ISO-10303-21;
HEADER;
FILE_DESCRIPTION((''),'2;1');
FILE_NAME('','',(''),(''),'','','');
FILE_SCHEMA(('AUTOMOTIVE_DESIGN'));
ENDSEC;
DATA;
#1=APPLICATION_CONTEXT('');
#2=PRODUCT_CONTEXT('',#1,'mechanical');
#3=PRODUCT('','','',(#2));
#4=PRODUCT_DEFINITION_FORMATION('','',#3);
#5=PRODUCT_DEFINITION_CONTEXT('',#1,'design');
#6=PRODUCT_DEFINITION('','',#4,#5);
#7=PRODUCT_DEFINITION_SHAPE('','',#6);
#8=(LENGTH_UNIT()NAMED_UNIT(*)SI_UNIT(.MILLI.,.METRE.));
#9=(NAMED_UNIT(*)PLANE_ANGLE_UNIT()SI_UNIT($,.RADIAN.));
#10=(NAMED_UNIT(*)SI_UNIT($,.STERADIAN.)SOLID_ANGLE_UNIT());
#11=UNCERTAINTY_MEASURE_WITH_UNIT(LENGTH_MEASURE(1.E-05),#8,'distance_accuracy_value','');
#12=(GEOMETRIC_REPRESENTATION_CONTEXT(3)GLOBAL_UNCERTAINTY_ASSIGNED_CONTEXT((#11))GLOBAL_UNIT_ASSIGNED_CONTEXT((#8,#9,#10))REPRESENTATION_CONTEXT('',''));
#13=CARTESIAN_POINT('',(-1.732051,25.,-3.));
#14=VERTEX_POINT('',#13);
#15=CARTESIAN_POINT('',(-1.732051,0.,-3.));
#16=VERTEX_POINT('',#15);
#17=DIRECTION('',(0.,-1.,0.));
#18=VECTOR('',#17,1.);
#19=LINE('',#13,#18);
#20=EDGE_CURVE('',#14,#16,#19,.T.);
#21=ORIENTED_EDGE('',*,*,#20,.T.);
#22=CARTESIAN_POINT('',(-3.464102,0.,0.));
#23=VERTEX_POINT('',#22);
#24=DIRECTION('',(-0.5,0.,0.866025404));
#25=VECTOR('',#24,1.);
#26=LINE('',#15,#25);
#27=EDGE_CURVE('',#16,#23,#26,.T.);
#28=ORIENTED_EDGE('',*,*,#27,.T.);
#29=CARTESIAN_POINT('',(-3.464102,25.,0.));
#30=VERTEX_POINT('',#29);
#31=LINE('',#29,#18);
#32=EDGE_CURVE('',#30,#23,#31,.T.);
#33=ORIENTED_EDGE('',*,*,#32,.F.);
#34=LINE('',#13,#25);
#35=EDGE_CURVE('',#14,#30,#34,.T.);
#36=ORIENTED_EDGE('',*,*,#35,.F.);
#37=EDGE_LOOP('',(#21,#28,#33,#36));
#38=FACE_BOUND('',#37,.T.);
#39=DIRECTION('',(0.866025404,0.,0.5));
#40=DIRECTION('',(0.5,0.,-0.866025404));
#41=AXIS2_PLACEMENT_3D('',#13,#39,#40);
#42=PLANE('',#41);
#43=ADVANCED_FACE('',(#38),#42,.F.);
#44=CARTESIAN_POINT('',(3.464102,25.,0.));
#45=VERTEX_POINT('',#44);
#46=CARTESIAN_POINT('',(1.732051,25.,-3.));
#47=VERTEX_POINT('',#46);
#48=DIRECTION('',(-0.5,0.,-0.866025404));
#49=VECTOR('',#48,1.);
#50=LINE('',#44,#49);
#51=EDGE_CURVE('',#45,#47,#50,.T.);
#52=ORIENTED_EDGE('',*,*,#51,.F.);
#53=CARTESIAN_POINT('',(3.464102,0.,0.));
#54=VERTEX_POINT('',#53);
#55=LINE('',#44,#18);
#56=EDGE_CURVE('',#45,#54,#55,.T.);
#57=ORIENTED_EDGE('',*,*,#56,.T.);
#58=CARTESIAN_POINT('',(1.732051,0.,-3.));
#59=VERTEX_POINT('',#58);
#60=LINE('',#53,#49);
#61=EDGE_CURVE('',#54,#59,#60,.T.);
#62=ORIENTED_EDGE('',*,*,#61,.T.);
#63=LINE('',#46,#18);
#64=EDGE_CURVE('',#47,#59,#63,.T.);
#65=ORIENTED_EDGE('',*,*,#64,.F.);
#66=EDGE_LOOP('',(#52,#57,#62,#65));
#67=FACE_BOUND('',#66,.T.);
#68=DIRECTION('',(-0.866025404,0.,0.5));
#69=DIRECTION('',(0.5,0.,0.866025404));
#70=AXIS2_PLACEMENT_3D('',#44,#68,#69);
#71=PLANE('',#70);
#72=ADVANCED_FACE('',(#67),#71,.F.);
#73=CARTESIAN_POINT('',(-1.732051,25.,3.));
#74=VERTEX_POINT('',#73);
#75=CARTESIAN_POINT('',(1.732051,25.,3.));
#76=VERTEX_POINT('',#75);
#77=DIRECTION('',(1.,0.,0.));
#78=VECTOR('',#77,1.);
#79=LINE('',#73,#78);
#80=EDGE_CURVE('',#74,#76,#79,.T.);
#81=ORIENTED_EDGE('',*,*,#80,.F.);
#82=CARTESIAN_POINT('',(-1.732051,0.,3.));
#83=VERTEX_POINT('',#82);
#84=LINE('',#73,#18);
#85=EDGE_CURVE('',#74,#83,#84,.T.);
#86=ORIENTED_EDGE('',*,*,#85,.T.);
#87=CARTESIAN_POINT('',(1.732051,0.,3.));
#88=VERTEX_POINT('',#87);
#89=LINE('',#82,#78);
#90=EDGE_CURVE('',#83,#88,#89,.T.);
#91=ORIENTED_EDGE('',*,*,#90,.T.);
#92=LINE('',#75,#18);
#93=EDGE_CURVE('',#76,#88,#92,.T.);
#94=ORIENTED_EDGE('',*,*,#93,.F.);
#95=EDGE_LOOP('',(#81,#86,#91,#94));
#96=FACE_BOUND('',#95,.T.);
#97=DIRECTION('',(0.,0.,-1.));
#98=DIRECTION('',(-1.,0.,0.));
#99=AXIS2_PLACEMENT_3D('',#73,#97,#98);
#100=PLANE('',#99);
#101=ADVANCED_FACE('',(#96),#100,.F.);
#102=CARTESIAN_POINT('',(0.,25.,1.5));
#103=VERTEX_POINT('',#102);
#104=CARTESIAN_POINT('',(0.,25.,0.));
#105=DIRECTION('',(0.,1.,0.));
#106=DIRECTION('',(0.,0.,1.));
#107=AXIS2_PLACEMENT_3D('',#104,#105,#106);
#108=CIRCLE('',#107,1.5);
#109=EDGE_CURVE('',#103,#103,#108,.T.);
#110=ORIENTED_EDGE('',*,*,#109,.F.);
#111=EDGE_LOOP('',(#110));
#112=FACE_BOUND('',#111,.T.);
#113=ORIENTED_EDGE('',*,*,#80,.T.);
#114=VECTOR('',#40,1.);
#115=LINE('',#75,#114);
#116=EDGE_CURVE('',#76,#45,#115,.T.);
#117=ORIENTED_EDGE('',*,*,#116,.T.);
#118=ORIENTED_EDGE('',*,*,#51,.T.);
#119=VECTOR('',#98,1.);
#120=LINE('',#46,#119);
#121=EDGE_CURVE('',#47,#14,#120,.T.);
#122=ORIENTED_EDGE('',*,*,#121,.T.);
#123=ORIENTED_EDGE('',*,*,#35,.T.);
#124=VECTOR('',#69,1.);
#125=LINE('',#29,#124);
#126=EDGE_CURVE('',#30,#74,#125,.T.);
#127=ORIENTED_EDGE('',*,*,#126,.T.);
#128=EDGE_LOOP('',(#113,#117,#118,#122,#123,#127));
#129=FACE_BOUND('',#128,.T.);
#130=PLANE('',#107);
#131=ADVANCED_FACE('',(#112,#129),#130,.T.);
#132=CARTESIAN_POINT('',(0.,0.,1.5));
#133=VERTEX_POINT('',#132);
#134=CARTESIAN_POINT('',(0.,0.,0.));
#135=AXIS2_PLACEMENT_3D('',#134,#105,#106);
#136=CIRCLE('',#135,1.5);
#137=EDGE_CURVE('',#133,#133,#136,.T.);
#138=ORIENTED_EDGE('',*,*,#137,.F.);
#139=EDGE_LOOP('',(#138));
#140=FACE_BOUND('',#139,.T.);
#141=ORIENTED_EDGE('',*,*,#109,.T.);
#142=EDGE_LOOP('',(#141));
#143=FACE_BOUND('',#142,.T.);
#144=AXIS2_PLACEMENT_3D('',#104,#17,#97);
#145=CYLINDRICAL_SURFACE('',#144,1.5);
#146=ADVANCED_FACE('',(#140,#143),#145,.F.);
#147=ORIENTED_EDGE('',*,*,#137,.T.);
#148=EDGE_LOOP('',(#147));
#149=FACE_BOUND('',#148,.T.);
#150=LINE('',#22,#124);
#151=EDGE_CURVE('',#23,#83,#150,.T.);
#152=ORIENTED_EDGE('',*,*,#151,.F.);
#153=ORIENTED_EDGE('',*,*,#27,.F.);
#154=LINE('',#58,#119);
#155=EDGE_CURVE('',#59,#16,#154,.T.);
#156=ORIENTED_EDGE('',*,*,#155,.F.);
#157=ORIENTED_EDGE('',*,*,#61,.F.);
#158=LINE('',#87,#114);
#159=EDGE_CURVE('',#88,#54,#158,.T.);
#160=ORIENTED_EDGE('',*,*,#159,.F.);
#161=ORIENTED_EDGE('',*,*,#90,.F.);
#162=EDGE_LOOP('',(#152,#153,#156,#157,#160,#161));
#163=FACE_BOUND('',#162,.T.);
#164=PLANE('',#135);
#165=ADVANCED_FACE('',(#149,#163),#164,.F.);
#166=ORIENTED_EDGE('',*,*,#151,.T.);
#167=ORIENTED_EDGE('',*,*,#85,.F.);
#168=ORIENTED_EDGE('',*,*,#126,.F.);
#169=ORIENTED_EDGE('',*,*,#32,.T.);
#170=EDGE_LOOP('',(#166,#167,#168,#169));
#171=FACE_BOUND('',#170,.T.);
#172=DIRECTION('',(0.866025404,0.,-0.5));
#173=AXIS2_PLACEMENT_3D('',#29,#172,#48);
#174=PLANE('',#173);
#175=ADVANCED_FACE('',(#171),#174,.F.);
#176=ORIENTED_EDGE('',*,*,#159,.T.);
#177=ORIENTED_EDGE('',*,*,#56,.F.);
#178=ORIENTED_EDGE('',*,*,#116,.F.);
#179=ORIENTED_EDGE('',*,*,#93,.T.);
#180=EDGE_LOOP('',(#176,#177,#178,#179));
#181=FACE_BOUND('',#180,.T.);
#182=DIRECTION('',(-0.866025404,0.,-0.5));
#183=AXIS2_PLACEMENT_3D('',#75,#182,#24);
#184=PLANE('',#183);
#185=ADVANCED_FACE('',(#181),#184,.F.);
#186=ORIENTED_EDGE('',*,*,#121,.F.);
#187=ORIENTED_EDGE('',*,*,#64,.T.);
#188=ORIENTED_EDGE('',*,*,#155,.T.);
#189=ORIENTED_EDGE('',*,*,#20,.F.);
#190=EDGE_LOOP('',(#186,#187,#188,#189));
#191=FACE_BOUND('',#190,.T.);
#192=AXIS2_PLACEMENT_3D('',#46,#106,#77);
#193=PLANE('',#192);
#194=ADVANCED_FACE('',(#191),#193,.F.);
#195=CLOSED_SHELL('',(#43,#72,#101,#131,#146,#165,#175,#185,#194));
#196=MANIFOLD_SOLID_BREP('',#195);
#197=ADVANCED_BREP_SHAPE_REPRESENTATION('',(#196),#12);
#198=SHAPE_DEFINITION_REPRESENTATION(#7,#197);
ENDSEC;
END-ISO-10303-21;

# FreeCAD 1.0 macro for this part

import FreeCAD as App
import Part
import Sketcher

V = App.Vector
Q = App.Units.Quantity


def add_polygon(sketch, points):
    """Adds a closed chain of lines whose ends are joined by coincident constraints."""
    first, n = sketch.GeometryCount, len(points)
    for a, b in zip(points, points[1:] + points[:1]):
        sketch.addGeometry(Part.LineSegment(App.Vector(*a, 0), App.Vector(*b, 0)), False)
    for i in range(n):
        sketch.addConstraint(Sketcher.Constraint("Coincident", first + i, 2, first + (i + 1) % n, 1))

doc = App.newDocument("Part")
body = doc.addObject("PartDesign::Body", "Body")

sketch1 = body.newObject("Sketcher::SketchObject", "Sketch")
sketch1.AttachmentSupport = (doc.getObject("XZ_Plane"), [""])
sketch1.MapMode = "FlatFace"
add_polygon(sketch1, [(-1.7, -3), (-3.5, 0), (-1.7, 3), (1.7, 3), (3.5, 0), (1.7, -3)])
sketch1.addGeometry(Part.Circle(V(0, 0, 0), V(0, 0, 1), 1.5), False)
sketch1.addConstraint(Sketcher.Constraint("Horizontal", 2))
sketch1.addConstraint(Sketcher.Constraint("Horizontal", 5))
sketch1.addConstraint(Sketcher.Constraint("Coincident", 6, 3, -1, 1))
sketch1.addConstraint(Sketcher.Constraint("Symmetric", 0, 2, 3, 2, -1, 1))
sketch1.addConstraint(Sketcher.Constraint("Symmetric", 1, 2, 4, 2, -1, 1))
sketch1.addConstraint(Sketcher.Constraint("PointOnObject", 0, 2, -1))
sketch1.addConstraint(Sketcher.Constraint("Parallel", 0, 3))
sketch1.addConstraint(Sketcher.Constraint("Vertical", 2, 2, 4, 2))
sketch1.addConstraint(Sketcher.Constraint("Diameter", 6, 3.0))
sketch1.addConstraint(Sketcher.Constraint("Angle", 0, Q("120 deg")))
sketch1.addConstraint(Sketcher.Constraint("DistanceY", -1, 1, 1, 2, 3.0))
sketch1.addConstraint(Sketcher.Constraint("DistanceX", 2, 1, 2, 2, 3.464102))
pad1 = body.newObject("PartDesign::Pad", "Pad")
pad1.Profile = sketch1
pad1.Length = 25
pad1.Reversed = True

doc.recompute()
